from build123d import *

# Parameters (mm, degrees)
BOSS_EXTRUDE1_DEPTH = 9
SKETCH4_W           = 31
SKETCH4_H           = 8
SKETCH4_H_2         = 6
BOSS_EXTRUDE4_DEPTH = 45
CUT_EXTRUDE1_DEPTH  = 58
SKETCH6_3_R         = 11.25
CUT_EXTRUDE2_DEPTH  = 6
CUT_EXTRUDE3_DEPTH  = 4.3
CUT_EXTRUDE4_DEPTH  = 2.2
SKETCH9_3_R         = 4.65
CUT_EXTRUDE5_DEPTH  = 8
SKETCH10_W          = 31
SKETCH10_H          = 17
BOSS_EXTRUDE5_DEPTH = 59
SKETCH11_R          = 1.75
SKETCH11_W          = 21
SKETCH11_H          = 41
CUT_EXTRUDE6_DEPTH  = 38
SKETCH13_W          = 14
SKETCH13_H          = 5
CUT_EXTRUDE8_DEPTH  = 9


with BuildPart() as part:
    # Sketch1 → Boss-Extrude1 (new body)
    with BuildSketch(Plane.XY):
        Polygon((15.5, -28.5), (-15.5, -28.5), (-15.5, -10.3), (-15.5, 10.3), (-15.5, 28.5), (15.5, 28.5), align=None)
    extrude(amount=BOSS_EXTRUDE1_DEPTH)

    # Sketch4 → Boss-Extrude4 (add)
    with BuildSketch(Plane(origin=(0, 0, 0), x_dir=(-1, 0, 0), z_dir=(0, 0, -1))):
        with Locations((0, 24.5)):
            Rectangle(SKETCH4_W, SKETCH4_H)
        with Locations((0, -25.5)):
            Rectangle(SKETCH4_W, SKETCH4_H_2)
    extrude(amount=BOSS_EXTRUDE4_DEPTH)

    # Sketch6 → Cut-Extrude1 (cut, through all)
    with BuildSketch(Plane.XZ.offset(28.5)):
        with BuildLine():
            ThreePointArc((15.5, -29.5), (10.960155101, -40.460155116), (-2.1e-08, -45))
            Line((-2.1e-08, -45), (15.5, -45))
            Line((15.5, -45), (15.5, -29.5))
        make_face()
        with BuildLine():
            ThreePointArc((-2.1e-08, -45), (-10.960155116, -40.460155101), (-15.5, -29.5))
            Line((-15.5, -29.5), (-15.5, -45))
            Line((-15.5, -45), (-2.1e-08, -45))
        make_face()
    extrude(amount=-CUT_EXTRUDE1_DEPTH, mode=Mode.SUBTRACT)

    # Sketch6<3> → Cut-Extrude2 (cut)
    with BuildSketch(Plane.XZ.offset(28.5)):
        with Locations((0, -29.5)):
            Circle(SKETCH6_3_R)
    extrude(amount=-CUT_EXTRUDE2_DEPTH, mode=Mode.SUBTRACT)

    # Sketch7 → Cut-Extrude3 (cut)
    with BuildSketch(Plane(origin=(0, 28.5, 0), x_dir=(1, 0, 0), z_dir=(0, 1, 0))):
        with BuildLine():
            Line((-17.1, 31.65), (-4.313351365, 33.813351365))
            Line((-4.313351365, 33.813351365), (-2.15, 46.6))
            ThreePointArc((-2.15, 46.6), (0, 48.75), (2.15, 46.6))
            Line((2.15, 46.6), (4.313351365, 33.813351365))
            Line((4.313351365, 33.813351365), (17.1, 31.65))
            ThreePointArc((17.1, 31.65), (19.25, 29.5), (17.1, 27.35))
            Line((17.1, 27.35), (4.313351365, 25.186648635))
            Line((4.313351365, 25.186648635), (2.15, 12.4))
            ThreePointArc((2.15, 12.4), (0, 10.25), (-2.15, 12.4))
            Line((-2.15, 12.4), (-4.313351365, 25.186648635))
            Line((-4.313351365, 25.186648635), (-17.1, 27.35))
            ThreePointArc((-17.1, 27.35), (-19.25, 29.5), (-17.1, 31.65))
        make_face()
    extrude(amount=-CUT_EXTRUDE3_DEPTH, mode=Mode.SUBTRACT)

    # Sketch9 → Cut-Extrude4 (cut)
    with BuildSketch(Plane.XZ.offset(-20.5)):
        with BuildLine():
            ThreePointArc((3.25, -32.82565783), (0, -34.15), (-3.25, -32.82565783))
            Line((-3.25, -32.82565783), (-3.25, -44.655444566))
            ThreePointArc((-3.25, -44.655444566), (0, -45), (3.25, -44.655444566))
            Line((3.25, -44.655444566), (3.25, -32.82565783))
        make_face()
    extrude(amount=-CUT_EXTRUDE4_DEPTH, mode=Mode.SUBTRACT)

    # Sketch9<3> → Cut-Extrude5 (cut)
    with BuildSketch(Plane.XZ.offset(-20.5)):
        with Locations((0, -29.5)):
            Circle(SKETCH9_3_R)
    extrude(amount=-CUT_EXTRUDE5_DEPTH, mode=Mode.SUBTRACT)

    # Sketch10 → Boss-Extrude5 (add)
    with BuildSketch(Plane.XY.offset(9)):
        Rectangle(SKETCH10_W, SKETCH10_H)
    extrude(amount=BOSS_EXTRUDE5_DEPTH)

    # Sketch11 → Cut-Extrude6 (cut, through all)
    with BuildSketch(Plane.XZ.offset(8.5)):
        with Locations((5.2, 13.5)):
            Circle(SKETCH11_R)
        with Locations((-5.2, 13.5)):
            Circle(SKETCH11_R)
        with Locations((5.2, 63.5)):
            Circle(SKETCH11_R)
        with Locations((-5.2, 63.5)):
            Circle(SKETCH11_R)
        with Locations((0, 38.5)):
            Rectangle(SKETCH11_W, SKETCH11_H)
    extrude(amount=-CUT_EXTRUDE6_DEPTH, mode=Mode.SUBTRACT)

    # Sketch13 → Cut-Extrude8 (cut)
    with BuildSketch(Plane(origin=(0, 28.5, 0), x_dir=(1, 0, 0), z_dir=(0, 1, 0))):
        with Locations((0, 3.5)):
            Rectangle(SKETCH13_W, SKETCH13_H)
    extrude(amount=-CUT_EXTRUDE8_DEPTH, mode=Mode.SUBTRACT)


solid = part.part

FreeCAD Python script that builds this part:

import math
import FreeCAD as App
import Part
import Sketcher
from FreeCAD import Vector


def add_polygon(sketch, points):
    """Adds a closed chain of lines whose ends are joined by coincident constraints."""
    first, n = sketch.GeometryCount, len(points)
    for a, b in zip(points, points[1:] + points[:1]):
        sketch.addGeometry(Part.LineSegment(App.Vector(*a, 0), App.Vector(*b, 0)), False)
    for i in range(n):
        sketch.addConstraint(Sketcher.Constraint("Coincident", first + i, 2, first + (i + 1) % n, 1))

doc = App.newDocument("Part")
params = doc.addObject("Spreadsheet::Sheet", "Params")
for row, (alias, value) in enumerate([
    ("sketch1_width", "31 mm"),
    ("sketch1_height", "57 mm"),
    ("pad1_length", "9 mm"),
    ("sketch2_width", "31 mm"),
    ("sketch2_height", "8 mm"),
    ("sketch2_height2", "6 mm"),
    ("pad2_length", "45 mm"),
    ("sketch3_radius", "15.5 mm"),
    ("sketch4_diameter", "22.5 mm"),
    ("pocket2_length", "6 mm"),
    ("sketch5_radius", "2.15 mm"),
    ("pocket3_length", "4.3 mm"),
    ("sketch6_radius", "15.5 mm"),
    ("sketch6_radius2", "4.65 mm"),
    ("pocket4_length", "2.2 mm"),
    ("sketch7_diameter", "9.3 mm"),
    ("pocket5_length", "8 mm"),
    ("sketch8_width", "31 mm"),
    ("sketch8_height", "17 mm"),
    ("pad3_length", "59 mm"),
    ("sketch9_diameter", "3.5 mm"),
    ("sketch9_width", "21 mm"),
    ("sketch9_height", "41 mm"),
    ("sketch10_width", "14 mm"),
    ("sketch10_height", "5 mm"),
    ("pocket7_length", "9 mm"),
], start=1):
    params.set(f"A{row}", alias)
    params.set(f"B{row}", "=" + value)
    params.setAlias(f"B{row}", alias)

body = doc.addObject("PartDesign::Body", "Body")

# Sketch on XY plane
sketch1 = doc.addObject("Sketcher::SketchObject", "Sketch")
body.addObject(sketch1)
sketch1.AttachmentSupport = (doc.XY_Plane, [""])
sketch1.MapMode = "FlatFace"
add_polygon(sketch1, [(-15.5, -28.5), (15.5, -28.5), (15.5, 28.5), (-15.5, 28.5)])  # lines 0-3
sketch1.addConstraint([
    Sketcher.Constraint("Horizontal", 0),
    Sketcher.Constraint("Vertical", 1),
    Sketcher.Constraint("Horizontal", 2),
    Sketcher.Constraint("Vertical", 3),
    Sketcher.Constraint("Symmetric", 0, 2, 2, 2, -1, 1),
    Sketcher.Constraint("DistanceX", 0, 1, 0, 2, 31.0),
    Sketcher.Constraint("DistanceY", 1, 1, 1, 2, 57.0),
])
sketch1.setExpression("Constraints[9]", "Params.sketch1_width")
sketch1.setExpression("Constraints[10]", "Params.sketch1_height")
pad1 = doc.addObject("PartDesign::Pad", "Pad")
body.addObject(pad1)
pad1.Profile = sketch1
pad1.setExpression("Length", "Params.pad1_length")

# Sketch on XY plane
sketch2 = doc.addObject("Sketcher::SketchObject", "Sketch001")
body.addObject(sketch2)
sketch2.AttachmentSupport = (doc.XY_Plane, [""])
sketch2.MapMode = "FlatFace"
add_polygon(sketch2, [(15.5, 28.5), (15.5, 20.5), (-15.5, 20.5), (-15.5, 28.5)])  # lines 0-3
add_polygon(sketch2, [(15.5, -22.5), (15.5, -28.5), (-15.5, -28.5), (-15.5, -22.5)])  # lines 4-7
sketch2.addConstraint([
    Sketcher.Constraint("Vertical", 0),
    Sketcher.Constraint("Horizontal", 1),
    Sketcher.Constraint("Vertical", 2),
    Sketcher.Constraint("Horizontal", 3),
    Sketcher.Constraint("Vertical", 4),
    Sketcher.Constraint("Horizontal", 5),
    Sketcher.Constraint("Vertical", 6),
    Sketcher.Constraint("Horizontal", 7),
    Sketcher.Constraint("Symmetric", 2, 2, 4, 2, -1, 1),
    Sketcher.Constraint("Vertical", 3, 2, 4, 2),
    Sketcher.Constraint("Vertical", 2, 2, 5, 2),
    Sketcher.Constraint("DistanceX", 1, 2, 1, 1, 31.0),
    Sketcher.Constraint("DistanceY", 0, 2, 0, 1, 8.0),
    Sketcher.Constraint("DistanceY", 4, 2, 4, 1, 6.0),
    Sketcher.Constraint("DistanceY", 4, 2, 0, 2, 49.0),
])
sketch2.setExpression("Constraints[19]", "Params.sketch2_width")
sketch2.setExpression("Constraints[20]", "Params.sketch2_height")
sketch2.setExpression("Constraints[21]", "Params.sketch2_height2")
pad2 = doc.addObject("PartDesign::Pad", "Pad001")
body.addObject(pad2)
pad2.Profile = sketch2
pad2.setExpression("Length", "Params.pad2_length")
pad2.Reversed = True

# Sketch on XZ plane
sketch3 = doc.addObject("Sketcher::SketchObject", "Sketch002")
body.addObject(sketch3)
sketch3.AttachmentSupport = (doc.XZ_Plane, [""])
sketch3.MapMode = "FlatFace"
sketch3.AttachmentOffset = App.Placement(Vector(0, 0, 28.5), App.Rotation())
sketch3.addGeometry([
    Part.ArcOfCircle(Part.Circle(Vector(0, -29.5, 0), Vector(0, 0, 1), 15.5), math.radians(-90), math.radians(0)),  # 0
    Part.LineSegment(Vector(0, -45, 0), Vector(15.5, -45, 0)),  # 1
    Part.LineSegment(Vector(15.5, -45, 0), Vector(15.5, -29.5, 0)),  # 2
    Part.ArcOfCircle(Part.Circle(Vector(0, -29.5, 0), Vector(0, 0, 1), 15.5), math.radians(180), math.radians(270)),  # 3
    Part.LineSegment(Vector(-15.5, -29.5, 0), Vector(-15.5, -45, 0)),  # 4
    Part.LineSegment(Vector(-15.5, -45, 0), Vector(0, -45, 0)),  # 5
], False)
sketch3.addConstraint([
    Sketcher.Constraint("Tangent", 0, 1, 1, 1),
    Sketcher.Constraint("Coincident", 1, 2, 2, 1),
    Sketcher.Constraint("Tangent", 2, 2, 0, 2),
    Sketcher.Constraint("Tangent", 3, 1, 4, 1),
    Sketcher.Constraint("Coincident", 4, 2, 5, 1),
    Sketcher.Constraint("Tangent", 5, 2, 3, 2),
    Sketcher.Constraint("Horizontal", 1),
    Sketcher.Constraint("Vertical", 2),
    Sketcher.Constraint("Vertical", 4),
    Sketcher.Constraint("Horizontal", 5),
    Sketcher.Constraint("Coincident", 3, 3, 0, 3),
    Sketcher.Constraint("Equal", 0, 3),
    Sketcher.Constraint("PointOnObject", 0, 3, -2),
    Sketcher.Constraint("Radius", 0, 15.5),
    Sketcher.Constraint("DistanceY", 0, 1, -1, 1, 45.0),
])
sketch3.setExpression("Constraints[13]", "Params.sketch3_radius")
pocket1 = doc.addObject("PartDesign::Pocket", "Pocket")
body.addObject(pocket1)
pocket1.Profile = sketch3
pocket1.Type = "ThroughAll"

# Sketch on XZ plane
sketch4 = doc.addObject("Sketcher::SketchObject", "Sketch003")
body.addObject(sketch4)
sketch4.AttachmentSupport = (doc.XZ_Plane, [""])
sketch4.MapMode = "FlatFace"
sketch4.AttachmentOffset = App.Placement(Vector(0, 0, 28.5), App.Rotation())
sketch4.addGeometry(Part.Circle(Vector(0, -29.5, 0), Vector(0, 0, 1), 11.25), False)
sketch4.addConstraint([
    Sketcher.Constraint("PointOnObject", 0, 3, -2),
    Sketcher.Constraint("Diameter", 0, 22.5),
    Sketcher.Constraint("DistanceY", 0, 3, -1, 1, 29.5),
])
sketch4.setExpression("Constraints[1]", "Params.sketch4_diameter")
pocket2 = doc.addObject("PartDesign::Pocket", "Pocket001")
body.addObject(pocket2)
pocket2.Profile = sketch4
pocket2.setExpression("Length", "Params.pocket2_length")

# Sketch on XZ plane
sketch5 = doc.addObject("Sketcher::SketchObject", "Sketch004")
body.addObject(sketch5)
sketch5.AttachmentSupport = (doc.XZ_Plane, [""])
sketch5.MapMode = "FlatFace"
sketch5.AttachmentOffset = App.Placement(Vector(0, 0, -28.5), App.Rotation())
sketch5.addGeometry([
    Part.LineSegment(Vector(-4.313351, -33.813351, 0), Vector(-17.1, -31.65, 0)),  # 0
    Part.ArcOfCircle(Part.Circle(Vector(-17.1, -29.5, 0), Vector(0, 0, 1), 2.15), math.radians(90), math.radians(270)),  # 1
    Part.LineSegment(Vector(-17.1, -27.35, 0), Vector(-4.313351, -25.186649, 0)),  # 2
    Part.LineSegment(Vector(-4.313351, -25.186649, 0), Vector(-2.15, -12.4, 0)),  # 3
    Part.ArcOfCircle(Part.Circle(Vector(0, -12.4, 0), Vector(0, 0, 1), 2.15), math.radians(0), math.radians(180)),  # 4
    Part.LineSegment(Vector(2.15, -12.4, 0), Vector(4.313351, -25.186649, 0)),  # 5
    Part.LineSegment(Vector(4.313351, -25.186649, 0), Vector(17.1, -27.35, 0)),  # 6
    Part.ArcOfCircle(Part.Circle(Vector(17.1, -29.5, 0), Vector(0, 0, 1), 2.15), math.radians(-90), math.radians(90)),  # 7
    Part.LineSegment(Vector(17.1, -31.65, 0), Vector(4.313351, -33.813351, 0)),  # 8
    Part.LineSegment(Vector(4.313351, -33.813351, 0), Vector(2.15, -46.6, 0)),  # 9
    Part.ArcOfCircle(Part.Circle(Vector(0, -46.6, 0), Vector(0, 0, 1), 2.15), math.radians(180), math.radians(360)),  # 10
    Part.LineSegment(Vector(-2.15, -46.6, 0), Vector(-4.313351, -33.813351, 0)),  # 11
], False)
sketch5.addConstraint([
    Sketcher.Constraint("Coincident", 0, 2, 1, 2),
    Sketcher.Constraint("Coincident", 1, 1, 2, 1),
    Sketcher.Constraint("Coincident", 2, 2, 3, 1),
    Sketcher.Constraint("Coincident", 3, 2, 4, 2),
    Sketcher.Constraint("Coincident", 4, 1, 5, 1),
    Sketcher.Constraint("Coincident", 5, 2, 6, 1),
    Sketcher.Constraint("Coincident", 6, 2, 7, 2),
    Sketcher.Constraint("Coincident", 7, 1, 8, 1),
    Sketcher.Constraint("Coincident", 8, 2, 9, 1),
    Sketcher.Constraint("Coincident", 9, 2, 10, 2),
    Sketcher.Constraint("Coincident", 10, 1, 11, 1),
    Sketcher.Constraint("Coincident", 11, 2, 0, 1),
    Sketcher.Constraint("Equal", 1, 4),
    Sketcher.Constraint("Equal", 4, 7),
    Sketcher.Constraint("Equal", 7, 10),
    Sketcher.Constraint("Symmetric", 1, 3, 7, 3, -2),
    Sketcher.Constraint("Symmetric", 3, 2, 4, 1, -2),
    Sketcher.Constraint("Symmetric", 2, 2, 5, 2, -2),
    Sketcher.Constraint("Symmetric", 9, 2, 10, 1, -2),
    Sketcher.Constraint("Symmetric", 8, 2, 11, 2, -2),
    Sketcher.Constraint("Perpendicular", 0, 3),
    Sketcher.Constraint("Perpendicular", 2, 5),
    Sketcher.Constraint("Perpendicular", 3, 6),
    Sketcher.Constraint("Perpendicular", 5, 8),
    Sketcher.Constraint("Perpendicular", 6, 9),
    Sketcher.Constraint("Horizontal", 4, 3, 3, 2),
    Sketcher.Constraint("Horizontal", 10, 3, 9, 2),
    Sketcher.Constraint("Vertical", 1, 3, 0, 2),
    Sketcher.Constraint("Vertical", 0, 2, 1, 1),
    Sketcher.Constraint("Vertical", 5, 2, 8, 2),
    Sketcher.Constraint("Equal", 2, 3),
    Sketcher.Constraint("Radius", 1, 2.15),
    Sketcher.Constraint("DistanceX", 1, 3, -1, 1, 17.1),
    Sketcher.Constraint("DistanceY", 1, 3, -1, 1, 29.5),
    Sketcher.Constraint("DistanceX", 2, 2, -1, 1, 4.313351),
])
sketch5.setExpression("Constraints[31]", "Params.sketch5_radius")
pocket3 = doc.addObject("PartDesign::Pocket", "Pocket002")
body.addObject(pocket3)
pocket3.Profile = sketch5
pocket3.setExpression("Length", "Params.pocket3_length")
pocket3.Reversed = True

# Sketch on XZ plane
sketch6 = doc.addObject("Sketcher::SketchObject", "Sketch005")
body.addObject(sketch6)
sketch6.AttachmentSupport = (doc.XZ_Plane, [""])
sketch6.MapMode = "FlatFace"
sketch6.AttachmentOffset = App.Placement(Vector(0, 0, -20.5), App.Rotation())
sketch6.addGeometry([
    Part.ArcOfCircle(Part.Circle(Vector(0, -29.5, 0), Vector(0, 0, 1), 4.65), math.radians(-134.340799), math.radians(-45.659201)),
    Part.LineSegment(Vector(-3.25, -32.825658, 0), Vector(-3.25, -44.655445, 0)),
    Part.ArcOfCircle(Part.Circle(Vector(0, -29.5, 0), Vector(0, 0, 1), 15.5), math.radians(-102.103449), math.radians(-77.896551)),
    Part.LineSegment(Vector(3.25, -44.655445, 0), Vector(3.25, -32.825658, 0)),
], False)
sketch6.addConstraint([
    Sketcher.Constraint("Coincident", 0, 1, 1, 1),
    Sketcher.Constraint("Coincident", 1, 2, 2, 1),
    Sketcher.Constraint("Coincident", 2, 2, 3, 1),
    Sketcher.Constraint("Coincident", 3, 2, 0, 2),
    Sketcher.Constraint("Vertical", 1),
    Sketcher.Constraint("Vertical", 3),
    Sketcher.Constraint("Coincident", 2, 3, 0, 3),
    Sketcher.Constraint("Symmetric", 1, 2, 2, 2, -2),
    Sketcher.Constraint("Radius", 2, 15.5),
    Sketcher.Constraint("Radius", 0, 4.65),
    Sketcher.Constraint("DistanceY", 0, 3, -1, 1, 29.5),
    Sketcher.Constraint("DistanceX", 1, 2, 2, 2, 6.5),
])
sketch6.setExpression("Constraints[8]", "Params.sketch6_radius")
sketch6.setExpression("Constraints[9]", "Params.sketch6_radius2")
pocket4 = doc.addObject("PartDesign::Pocket", "Pocket003")
body.addObject(pocket4)
pocket4.Profile = sketch6
pocket4.setExpression("Length", "Params.pocket4_length")

# Sketch on XZ plane
sketch7 = doc.addObject("Sketcher::SketchObject", "Sketch006")
body.addObject(sketch7)
sketch7.AttachmentSupport = (doc.XZ_Plane, [""])
sketch7.MapMode = "FlatFace"
sketch7.AttachmentOffset = App.Placement(Vector(0, 0, -20.5), App.Rotation())
sketch7.addGeometry(Part.Circle(Vector(0, -29.5, 0), Vector(0, 0, 1), 4.65), False)
sketch7.addConstraint([
    Sketcher.Constraint("PointOnObject", 0, 3, -2),
    Sketcher.Constraint("Diameter", 0, 9.3),
    Sketcher.Constraint("DistanceY", 0, 3, -1, 1, 29.5),
])
sketch7.setExpression("Constraints[1]", "Params.sketch7_diameter")
pocket5 = doc.addObject("PartDesign::Pocket", "Pocket004")
body.addObject(pocket5)
pocket5.Profile = sketch7
pocket5.setExpression("Length", "Params.pocket5_length")

# Sketch on XY plane
sketch8 = doc.addObject("Sketcher::SketchObject", "Sketch007")
body.addObject(sketch8)
sketch8.AttachmentSupport = (doc.XY_Plane, [""])
sketch8.MapMode = "FlatFace"
sketch8.AttachmentOffset = App.Placement(Vector(0, 0, 9), App.Rotation())
add_polygon(sketch8, [(-15.5, 8.5), (-15.5, -8.5), (15.5, -8.5), (15.5, 8.5)])  # lines 0-3
sketch8.addConstraint([
    Sketcher.Constraint("Vertical", 0),
    Sketcher.Constraint("Horizontal", 1),
    Sketcher.Constraint("Vertical", 2),
    Sketcher.Constraint("Horizontal", 3),
    Sketcher.Constraint("Symmetric", 0, 2, 2, 2, -1, 1),
    Sketcher.Constraint("DistanceX", 1, 1, 1, 2, 31.0),
    Sketcher.Constraint("DistanceY", 0, 2, 0, 1, 17.0),
])
sketch8.setExpression("Constraints[9]", "Params.sketch8_width")
sketch8.setExpression("Constraints[10]", "Params.sketch8_height")
pad3 = doc.addObject("PartDesign::Pad", "Pad002")
body.addObject(pad3)
pad3.Profile = sketch8
pad3.setExpression("Length", "Params.pad3_length")

# Sketch on XZ plane
sketch9 = doc.addObject("Sketcher::SketchObject", "Sketch008")
body.addObject(sketch9)
sketch9.AttachmentSupport = (doc.XZ_Plane, [""])
sketch9.MapMode = "FlatFace"
sketch9.AttachmentOffset = App.Placement(Vector(0, 0, 8.5), App.Rotation())
sketch9.addGeometry(Part.Circle(Vector(5.2, 13.5, 0), Vector(0, 0, 1), 1.75), False)  # 0
sketch9.addGeometry(Part.Circle(Vector(-5.2, 13.5, 0), Vector(0, 0, 1), 1.75), False)  # 1
sketch9.addGeometry(Part.Circle(Vector(5.2, 63.5, 0), Vector(0, 0, 1), 1.75), False)  # 2
sketch9.addGeometry(Part.Circle(Vector(-5.2, 63.5, 0), Vector(0, 0, 1), 1.75), False)  # 3
add_polygon(sketch9, [(-10.5, 59), (-10.5, 18), (10.5, 18), (10.5, 59)])  # lines 4-7
sketch9.addConstraint([
    Sketcher.Constraint("Vertical", 4),
    Sketcher.Constraint("Horizontal", 5),
    Sketcher.Constraint("Vertical", 6),
    Sketcher.Constraint("Horizontal", 7),
    Sketcher.Constraint("Equal", 0, 1),
    Sketcher.Constraint("Equal", 1, 2),
    Sketcher.Constraint("Equal", 2, 3),
    Sketcher.Constraint("Symmetric", 0, 3, 1, 3, -2),
    Sketcher.Constraint("Symmetric", 2, 3, 3, 3, -2),
    Sketcher.Constraint("Vertical", 0, 3, 2, 3),
    Sketcher.Constraint("Diameter", 0, 3.5),
    Sketcher.Constraint("DistanceX", 5, 1, 5, 2, 21.0),
    Sketcher.Constraint("DistanceY", 4, 2, 4, 1, 41.0),
    Sketcher.Constraint("DistanceY", -1, 1, 4, 2, 18.0),
    Sketcher.Constraint("DistanceY", 0, 3, 2, 3, 50.0),
    Sketcher.Constraint("DistanceX", -1, 1, 0, 3, 5.2),
    Sketcher.Constraint("DistanceY", -1, 1, 0, 3, 13.5),
    Sketcher.Constraint("DistanceX", 4, 2, -1, 1, 10.5),
])
sketch9.setExpression("Constraints[14]", "Params.sketch9_diameter")
sketch9.setExpression("Constraints[15]", "Params.sketch9_width")
sketch9.setExpression("Constraints[16]", "Params.sketch9_height")
pocket6 = doc.addObject("PartDesign::Pocket", "Pocket005")
body.addObject(pocket6)
pocket6.Profile = sketch9
pocket6.Type = "ThroughAll"

# Sketch on XZ plane
sketch10 = doc.addObject("Sketcher::SketchObject", "Sketch009")
body.addObject(sketch10)
sketch10.AttachmentSupport = (doc.XZ_Plane, [""])
sketch10.MapMode = "FlatFace"
sketch10.AttachmentOffset = App.Placement(Vector(0, 0, -28.5), App.Rotation())
add_polygon(sketch10, [(-7, -6), (-7, -1), (7, -1), (7, -6)])  # lines 0-3
sketch10.addConstraint([
    Sketcher.Constraint("Vertical", 0),
    Sketcher.Constraint("Horizontal", 1),
    Sketcher.Constraint("Vertical", 2),
    Sketcher.Constraint("Horizontal", 3),
    Sketcher.Constraint("DistanceX", 1, 1, 1, 2, 14.0),
    Sketcher.Constraint("DistanceY", 0, 1, 0, 2, 5.0),
    Sketcher.Constraint("DistanceX", 0, 2, -1, 1, 7.0),
    Sketcher.Constraint("DistanceY", 0, 2, -1, 1, 1.0),
])
sketch10.setExpression("Constraints[8]", "Params.sketch10_width")
sketch10.setExpression("Constraints[9]", "Params.sketch10_height")
pocket7 = doc.addObject("PartDesign::Pocket", "Pocket006")
body.addObject(pocket7)
pocket7.Profile = sketch10
pocket7.setExpression("Length", "Params.pocket7_length")
pocket7.Reversed = True

doc.recompute()
